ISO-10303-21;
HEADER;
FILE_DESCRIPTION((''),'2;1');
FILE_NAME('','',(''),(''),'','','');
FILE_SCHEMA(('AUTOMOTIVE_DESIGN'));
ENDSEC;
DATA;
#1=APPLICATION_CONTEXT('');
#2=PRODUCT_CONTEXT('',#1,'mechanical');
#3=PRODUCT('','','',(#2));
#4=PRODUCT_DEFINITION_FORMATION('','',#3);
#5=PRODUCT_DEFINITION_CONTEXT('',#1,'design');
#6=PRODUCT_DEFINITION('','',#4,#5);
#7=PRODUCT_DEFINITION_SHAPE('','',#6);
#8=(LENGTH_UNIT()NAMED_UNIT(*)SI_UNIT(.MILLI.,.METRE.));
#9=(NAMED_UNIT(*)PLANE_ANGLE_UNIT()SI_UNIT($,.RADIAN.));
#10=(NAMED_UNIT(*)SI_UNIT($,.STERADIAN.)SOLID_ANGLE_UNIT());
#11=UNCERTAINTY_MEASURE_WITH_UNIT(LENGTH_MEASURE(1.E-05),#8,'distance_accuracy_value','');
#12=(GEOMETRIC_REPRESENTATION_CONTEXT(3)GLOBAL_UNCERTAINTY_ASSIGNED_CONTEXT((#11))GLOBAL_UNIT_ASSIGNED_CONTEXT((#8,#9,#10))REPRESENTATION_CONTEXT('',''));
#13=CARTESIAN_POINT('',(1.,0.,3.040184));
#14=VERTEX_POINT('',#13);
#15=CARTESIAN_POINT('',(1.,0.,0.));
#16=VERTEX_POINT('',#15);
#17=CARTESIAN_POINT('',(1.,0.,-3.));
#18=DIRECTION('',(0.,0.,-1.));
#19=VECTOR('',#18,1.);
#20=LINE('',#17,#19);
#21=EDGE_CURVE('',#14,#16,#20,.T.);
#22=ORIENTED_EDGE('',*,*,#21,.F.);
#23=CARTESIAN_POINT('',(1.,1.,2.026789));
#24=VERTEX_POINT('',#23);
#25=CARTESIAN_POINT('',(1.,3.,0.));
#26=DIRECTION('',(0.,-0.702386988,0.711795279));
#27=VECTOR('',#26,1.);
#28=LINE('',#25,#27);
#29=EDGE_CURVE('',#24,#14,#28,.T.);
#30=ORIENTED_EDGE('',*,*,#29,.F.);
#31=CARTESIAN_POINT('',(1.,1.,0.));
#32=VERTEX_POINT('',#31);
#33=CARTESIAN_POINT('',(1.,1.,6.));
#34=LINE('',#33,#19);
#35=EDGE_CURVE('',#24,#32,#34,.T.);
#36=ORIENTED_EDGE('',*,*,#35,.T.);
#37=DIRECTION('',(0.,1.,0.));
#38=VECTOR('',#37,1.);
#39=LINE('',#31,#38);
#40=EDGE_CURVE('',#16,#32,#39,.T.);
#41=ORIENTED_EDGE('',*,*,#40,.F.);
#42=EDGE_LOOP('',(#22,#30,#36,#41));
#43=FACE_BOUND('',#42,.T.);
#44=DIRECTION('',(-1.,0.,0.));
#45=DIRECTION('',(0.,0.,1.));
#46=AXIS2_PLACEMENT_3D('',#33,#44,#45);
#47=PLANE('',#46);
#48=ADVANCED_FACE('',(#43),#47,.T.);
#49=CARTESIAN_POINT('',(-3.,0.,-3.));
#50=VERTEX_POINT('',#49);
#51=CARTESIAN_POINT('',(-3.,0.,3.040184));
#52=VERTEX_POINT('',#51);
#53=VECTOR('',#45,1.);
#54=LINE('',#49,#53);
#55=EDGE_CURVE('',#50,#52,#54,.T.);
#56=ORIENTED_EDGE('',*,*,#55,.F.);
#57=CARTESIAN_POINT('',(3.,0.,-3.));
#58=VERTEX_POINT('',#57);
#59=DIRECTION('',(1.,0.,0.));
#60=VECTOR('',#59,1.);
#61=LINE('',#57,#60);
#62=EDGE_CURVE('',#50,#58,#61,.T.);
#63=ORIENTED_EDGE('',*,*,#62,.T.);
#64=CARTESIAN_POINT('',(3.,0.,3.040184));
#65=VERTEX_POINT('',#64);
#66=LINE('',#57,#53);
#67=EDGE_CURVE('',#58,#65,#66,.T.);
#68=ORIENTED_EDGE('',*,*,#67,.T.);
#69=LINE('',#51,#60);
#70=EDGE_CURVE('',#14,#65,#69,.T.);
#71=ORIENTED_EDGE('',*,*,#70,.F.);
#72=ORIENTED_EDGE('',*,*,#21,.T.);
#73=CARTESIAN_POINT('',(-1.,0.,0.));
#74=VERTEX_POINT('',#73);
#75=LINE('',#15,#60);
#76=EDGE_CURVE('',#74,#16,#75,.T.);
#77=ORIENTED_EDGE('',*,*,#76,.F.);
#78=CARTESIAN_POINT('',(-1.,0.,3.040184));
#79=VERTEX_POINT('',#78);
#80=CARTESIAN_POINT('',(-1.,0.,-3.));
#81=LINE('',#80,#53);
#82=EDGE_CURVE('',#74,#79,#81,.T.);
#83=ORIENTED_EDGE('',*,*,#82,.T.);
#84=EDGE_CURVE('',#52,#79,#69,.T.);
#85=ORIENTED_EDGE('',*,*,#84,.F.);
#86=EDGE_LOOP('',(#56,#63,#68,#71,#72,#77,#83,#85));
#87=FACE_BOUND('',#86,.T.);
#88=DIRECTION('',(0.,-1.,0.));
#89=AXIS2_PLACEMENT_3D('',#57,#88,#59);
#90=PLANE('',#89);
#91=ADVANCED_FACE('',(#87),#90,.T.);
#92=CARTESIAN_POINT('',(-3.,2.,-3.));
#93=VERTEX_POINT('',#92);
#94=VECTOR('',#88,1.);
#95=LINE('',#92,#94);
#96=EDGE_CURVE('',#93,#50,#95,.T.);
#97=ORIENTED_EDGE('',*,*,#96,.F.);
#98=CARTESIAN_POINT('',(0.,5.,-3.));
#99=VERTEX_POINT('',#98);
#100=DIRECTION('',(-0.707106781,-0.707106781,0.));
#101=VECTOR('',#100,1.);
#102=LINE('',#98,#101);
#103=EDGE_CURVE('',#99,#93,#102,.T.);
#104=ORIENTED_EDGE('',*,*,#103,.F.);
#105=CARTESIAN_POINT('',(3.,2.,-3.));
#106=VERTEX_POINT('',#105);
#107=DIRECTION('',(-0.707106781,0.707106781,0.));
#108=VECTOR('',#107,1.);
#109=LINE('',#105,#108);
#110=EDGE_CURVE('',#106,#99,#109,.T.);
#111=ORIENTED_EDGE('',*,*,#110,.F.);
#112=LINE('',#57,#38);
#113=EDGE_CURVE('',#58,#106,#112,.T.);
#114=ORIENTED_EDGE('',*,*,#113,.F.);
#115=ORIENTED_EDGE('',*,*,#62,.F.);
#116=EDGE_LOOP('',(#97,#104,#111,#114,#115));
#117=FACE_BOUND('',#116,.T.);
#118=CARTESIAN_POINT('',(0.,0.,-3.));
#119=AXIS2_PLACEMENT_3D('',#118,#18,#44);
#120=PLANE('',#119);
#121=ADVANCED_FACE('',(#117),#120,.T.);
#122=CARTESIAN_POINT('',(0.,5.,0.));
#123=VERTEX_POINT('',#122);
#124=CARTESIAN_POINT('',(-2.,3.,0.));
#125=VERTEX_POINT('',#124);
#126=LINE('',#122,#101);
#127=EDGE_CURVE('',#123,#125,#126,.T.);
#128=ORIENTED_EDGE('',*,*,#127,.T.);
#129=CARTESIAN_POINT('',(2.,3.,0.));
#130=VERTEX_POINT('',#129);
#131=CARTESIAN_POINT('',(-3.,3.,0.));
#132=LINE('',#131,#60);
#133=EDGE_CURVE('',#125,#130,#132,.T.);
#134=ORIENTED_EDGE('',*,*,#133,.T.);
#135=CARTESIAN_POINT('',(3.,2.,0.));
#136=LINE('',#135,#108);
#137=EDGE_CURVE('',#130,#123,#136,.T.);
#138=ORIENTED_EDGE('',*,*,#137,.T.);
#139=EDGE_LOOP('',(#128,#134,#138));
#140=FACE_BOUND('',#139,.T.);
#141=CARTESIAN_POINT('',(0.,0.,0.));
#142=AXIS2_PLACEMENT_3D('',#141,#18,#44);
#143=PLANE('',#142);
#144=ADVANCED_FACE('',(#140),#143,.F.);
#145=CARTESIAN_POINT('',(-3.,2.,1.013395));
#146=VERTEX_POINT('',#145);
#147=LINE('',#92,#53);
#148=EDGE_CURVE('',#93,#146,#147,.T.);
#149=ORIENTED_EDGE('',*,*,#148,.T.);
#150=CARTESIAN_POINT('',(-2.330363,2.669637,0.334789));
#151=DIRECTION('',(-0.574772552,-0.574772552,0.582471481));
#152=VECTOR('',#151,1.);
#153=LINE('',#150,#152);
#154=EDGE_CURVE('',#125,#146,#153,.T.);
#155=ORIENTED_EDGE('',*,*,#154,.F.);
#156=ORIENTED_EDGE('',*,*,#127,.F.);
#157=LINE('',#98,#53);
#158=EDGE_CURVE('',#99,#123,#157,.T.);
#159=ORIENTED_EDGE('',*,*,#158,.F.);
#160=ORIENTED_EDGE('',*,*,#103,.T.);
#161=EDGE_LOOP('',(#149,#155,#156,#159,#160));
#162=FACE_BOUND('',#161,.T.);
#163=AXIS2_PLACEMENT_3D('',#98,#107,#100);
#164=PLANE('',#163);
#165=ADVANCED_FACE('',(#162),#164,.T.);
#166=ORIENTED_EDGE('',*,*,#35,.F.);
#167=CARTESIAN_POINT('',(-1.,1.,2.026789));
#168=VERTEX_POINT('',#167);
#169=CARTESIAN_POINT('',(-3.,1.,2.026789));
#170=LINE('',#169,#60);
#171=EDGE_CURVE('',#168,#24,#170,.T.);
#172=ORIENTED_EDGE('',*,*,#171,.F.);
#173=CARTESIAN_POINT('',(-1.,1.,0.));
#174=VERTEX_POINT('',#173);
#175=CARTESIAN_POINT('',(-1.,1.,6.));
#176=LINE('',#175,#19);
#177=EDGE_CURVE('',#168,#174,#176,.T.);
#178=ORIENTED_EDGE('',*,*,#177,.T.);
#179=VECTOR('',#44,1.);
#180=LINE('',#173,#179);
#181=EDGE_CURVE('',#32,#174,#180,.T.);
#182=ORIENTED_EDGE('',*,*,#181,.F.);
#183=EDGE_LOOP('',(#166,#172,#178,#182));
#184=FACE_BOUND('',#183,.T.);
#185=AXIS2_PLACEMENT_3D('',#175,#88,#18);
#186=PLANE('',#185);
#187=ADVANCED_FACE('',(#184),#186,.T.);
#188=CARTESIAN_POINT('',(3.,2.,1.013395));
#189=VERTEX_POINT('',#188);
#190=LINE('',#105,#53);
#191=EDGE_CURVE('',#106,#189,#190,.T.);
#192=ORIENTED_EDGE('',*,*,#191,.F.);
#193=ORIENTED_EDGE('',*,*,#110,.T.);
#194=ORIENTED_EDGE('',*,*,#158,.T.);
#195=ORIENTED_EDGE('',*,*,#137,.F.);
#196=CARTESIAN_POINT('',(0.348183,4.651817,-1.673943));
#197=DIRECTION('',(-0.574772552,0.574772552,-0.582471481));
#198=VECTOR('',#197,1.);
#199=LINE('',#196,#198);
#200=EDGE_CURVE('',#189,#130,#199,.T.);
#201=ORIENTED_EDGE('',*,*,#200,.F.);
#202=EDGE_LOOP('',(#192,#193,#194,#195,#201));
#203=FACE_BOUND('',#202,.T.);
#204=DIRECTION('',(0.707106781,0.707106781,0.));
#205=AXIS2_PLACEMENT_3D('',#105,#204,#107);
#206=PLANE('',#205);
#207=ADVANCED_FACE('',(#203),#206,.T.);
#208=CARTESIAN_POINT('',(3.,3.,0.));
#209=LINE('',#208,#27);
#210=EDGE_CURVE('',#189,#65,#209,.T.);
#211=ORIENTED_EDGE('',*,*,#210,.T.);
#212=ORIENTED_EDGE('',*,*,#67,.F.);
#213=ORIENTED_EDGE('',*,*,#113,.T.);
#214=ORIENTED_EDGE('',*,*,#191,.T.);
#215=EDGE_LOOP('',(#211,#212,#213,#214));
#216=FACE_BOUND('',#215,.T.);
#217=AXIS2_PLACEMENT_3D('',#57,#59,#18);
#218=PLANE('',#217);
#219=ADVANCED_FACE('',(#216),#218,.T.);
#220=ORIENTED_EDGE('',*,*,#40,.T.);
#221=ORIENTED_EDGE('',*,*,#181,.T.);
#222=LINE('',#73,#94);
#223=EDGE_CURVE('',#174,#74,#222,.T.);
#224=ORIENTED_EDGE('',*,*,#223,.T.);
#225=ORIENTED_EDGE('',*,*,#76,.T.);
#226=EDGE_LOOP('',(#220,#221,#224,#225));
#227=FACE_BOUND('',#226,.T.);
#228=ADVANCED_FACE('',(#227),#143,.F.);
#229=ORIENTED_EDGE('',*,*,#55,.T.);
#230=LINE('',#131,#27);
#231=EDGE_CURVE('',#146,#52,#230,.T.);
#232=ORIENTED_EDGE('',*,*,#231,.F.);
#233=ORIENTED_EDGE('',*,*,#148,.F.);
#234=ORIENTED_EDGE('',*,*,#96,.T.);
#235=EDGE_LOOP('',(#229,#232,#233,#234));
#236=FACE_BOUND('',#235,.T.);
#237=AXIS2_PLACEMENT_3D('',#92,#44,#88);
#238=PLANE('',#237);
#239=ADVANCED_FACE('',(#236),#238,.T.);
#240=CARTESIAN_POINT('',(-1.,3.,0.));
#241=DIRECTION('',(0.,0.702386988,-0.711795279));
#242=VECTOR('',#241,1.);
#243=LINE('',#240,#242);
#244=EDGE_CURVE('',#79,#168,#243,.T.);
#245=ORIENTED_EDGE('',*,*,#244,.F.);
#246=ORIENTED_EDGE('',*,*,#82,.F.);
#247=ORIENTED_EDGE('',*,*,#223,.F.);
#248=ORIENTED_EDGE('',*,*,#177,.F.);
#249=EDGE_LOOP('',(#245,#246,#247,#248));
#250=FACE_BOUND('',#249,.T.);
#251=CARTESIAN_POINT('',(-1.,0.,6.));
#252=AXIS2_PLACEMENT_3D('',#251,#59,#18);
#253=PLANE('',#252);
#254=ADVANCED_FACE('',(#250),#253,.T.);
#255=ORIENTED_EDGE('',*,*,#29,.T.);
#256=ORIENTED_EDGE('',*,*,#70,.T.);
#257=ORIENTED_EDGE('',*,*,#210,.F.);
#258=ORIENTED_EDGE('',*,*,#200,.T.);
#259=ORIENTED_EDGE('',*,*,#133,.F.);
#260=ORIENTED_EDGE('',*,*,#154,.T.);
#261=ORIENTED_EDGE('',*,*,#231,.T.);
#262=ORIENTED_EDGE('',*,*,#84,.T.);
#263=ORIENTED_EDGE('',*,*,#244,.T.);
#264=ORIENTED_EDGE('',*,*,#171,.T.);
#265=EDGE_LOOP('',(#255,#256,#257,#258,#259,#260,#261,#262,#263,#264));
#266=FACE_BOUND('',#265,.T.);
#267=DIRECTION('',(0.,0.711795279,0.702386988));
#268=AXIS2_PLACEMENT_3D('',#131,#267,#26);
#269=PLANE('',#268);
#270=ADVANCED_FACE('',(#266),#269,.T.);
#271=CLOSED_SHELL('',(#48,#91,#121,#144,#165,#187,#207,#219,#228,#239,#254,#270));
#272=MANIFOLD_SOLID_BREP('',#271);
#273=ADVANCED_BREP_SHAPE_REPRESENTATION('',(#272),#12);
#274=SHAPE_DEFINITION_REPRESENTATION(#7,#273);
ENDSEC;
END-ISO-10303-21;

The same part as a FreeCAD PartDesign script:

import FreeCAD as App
import Part
import Sketcher


def add_polygon(sketch, points):
    """Adds a closed chain of lines whose ends are joined by coincident constraints."""
    first, n = sketch.GeometryCount, len(points)
    for a, b in zip(points, points[1:] + points[:1]):
        sketch.addGeometry(Part.LineSegment(App.Vector(*a, 0), App.Vector(*b, 0)), False)
    for i in range(n):
        sketch.addConstraint(Sketcher.Constraint("Coincident", first + i, 2, first + (i + 1) % n, 1))

doc = App.newDocument("Part")
params = doc.addObject("Spreadsheet::Sheet", "Params")
for row, (alias, value) in enumerate([
    ("sketch1_width", "6 mm"),
    ("sketch1_height", "2 mm"),
    ("pad1_length", "3 mm"),
    ("sketch2_width", "3 mm"),
    ("pad2_length", "6 mm"),
    ("sketch3_width", "1 mm"),
    ("sketch3_width2", "2 mm"),
    ("pocket1_length", "6 mm"),
], start=1):
    params.set(f"A{row}", alias)
    params.set(f"B{row}", "=" + value)
    params.setAlias(f"B{row}", alias)

body = doc.addObject("PartDesign::Body", "Body")

# Sketch on XY plane
sketch1 = body.newObject("Sketcher::SketchObject", "Sketch")
sketch1.AttachmentSupport = (doc.getObject("XY_Plane"), [""])
sketch1.MapMode = "FlatFace"
add_polygon(sketch1, [(-3, 0), (3, 0), (3, 2), (0, 5), (-3, 2)])  # lines 0-4
sketch1.addConstraint([
    Sketcher.Constraint("Horizontal", 0),
    Sketcher.Constraint("Vertical", 1),
    Sketcher.Constraint("Vertical", 4),
    Sketcher.Constraint("Symmetric", 0, 2, 4, 2, -1, 1),
    Sketcher.Constraint("PointOnObject", 2, 2, -2),
    Sketcher.Constraint("Perpendicular", 2, 3),
    Sketcher.Constraint("Horizontal", 1, 2, 3, 2),
    Sketcher.Constraint("DistanceX", 0, 1, 0, 2, 6.0),
    Sketcher.Constraint("DistanceY", 1, 1, 1, 2, 2.0),
])
sketch1.setExpression("Constraints[12]", "Params.sketch1_width")
sketch1.setExpression("Constraints[13]", "Params.sketch1_height")
pad1 = body.newObject("PartDesign::Pad", "Pad")
pad1.Profile = sketch1
pad1.setExpression("Length", "Params.pad1_length")
pad1.Reversed = True

# Sketch on YZ plane
sketch2 = body.newObject("Sketcher::SketchObject", "Sketch001")
sketch2.AttachmentSupport = (doc.getObject("YZ_Plane"), [""])
sketch2.MapMode = "FlatFace"
sketch2.AttachmentOffset = App.Placement(App.Vector(0, 0, 3), App.Rotation())
add_polygon(sketch2, [(3, 0), (0, 3), (0, 0)])  # lines 0-2
sketch2.addConstraint([
    Sketcher.Constraint("Vertical", 1),
    Sketcher.Constraint("Horizontal", 2),
    Sketcher.Constraint("Coincident", 1, 2, -1, 1),
    Sketcher.Constraint("DistanceX", 2, 1, 2, 2, 3.0),
    Sketcher.Constraint("Distance", 0, 4.27115),
])
sketch2.setExpression("Constraints[6]", "Params.sketch2_width")
pad2 = body.newObject("PartDesign::Pad", "Pad001")
pad2.Profile = sketch2
pad2.setExpression("Length", "Params.pad2_length")
pad2.Reversed = True

# Sketch on XY plane
sketch3 = body.newObject("Sketcher::SketchObject", "Sketch002")
sketch3.AttachmentSupport = (doc.getObject("XY_Plane"), [""])
sketch3.MapMode = "FlatFace"
add_polygon(sketch3, [(-3, 2), (-2, 3), (-3, 3)])  # lines 0-2
add_polygon(sketch3, [(2, 3), (3, 2), (3, 3)])  # lines 3-5
add_polygon(sketch3, [(-1, 1), (-1, 0), (1, 0), (1, 1)])  # lines 6-9
sketch3.addConstraint([
    Sketcher.Constraint("Horizontal", 1),
    Sketcher.Constraint("Vertical", 2),
    Sketcher.Constraint("Vertical", 4),
    Sketcher.Constraint("Horizontal", 5),
    Sketcher.Constraint("Vertical", 6),
    Sketcher.Constraint("Horizontal", 7),
    Sketcher.Constraint("Vertical", 8),
    Sketcher.Constraint("Horizontal", 9),
    Sketcher.Constraint("Symmetric", 6, 2, 7, 2, -1, 1),
    Sketcher.Constraint("Symmetric", 2, 2, 3, 2, -2),
    Sketcher.Constraint("Symmetric", 0, 2, 5, 2, -2),
    Sketcher.Constraint("Perpendicular", 0, 3),
    Sketcher.Constraint("Equal", 4, 6),
    Sketcher.Constraint("DistanceX", 1, 2, 1, 1, 1.0),
    Sketcher.Constraint("DistanceX", 7, 1, 7, 2, 2.0),
    Sketcher.Constraint("DistanceX", 0, 2, -1, 1, 2.0),
    Sketcher.Constraint("DistanceY", -1, 1, 0, 2, 3.0),
])
sketch3.setExpression("Constraints[23]", "Params.sketch3_width")
sketch3.setExpression("Constraints[24]", "Params.sketch3_width2")
pocket1 = body.newObject("PartDesign::Pocket", "Pocket")
pocket1.Profile = sketch3
pocket1.setExpression("Length", "Params.pocket1_length")
pocket1.Reversed = True

doc.recompute()
